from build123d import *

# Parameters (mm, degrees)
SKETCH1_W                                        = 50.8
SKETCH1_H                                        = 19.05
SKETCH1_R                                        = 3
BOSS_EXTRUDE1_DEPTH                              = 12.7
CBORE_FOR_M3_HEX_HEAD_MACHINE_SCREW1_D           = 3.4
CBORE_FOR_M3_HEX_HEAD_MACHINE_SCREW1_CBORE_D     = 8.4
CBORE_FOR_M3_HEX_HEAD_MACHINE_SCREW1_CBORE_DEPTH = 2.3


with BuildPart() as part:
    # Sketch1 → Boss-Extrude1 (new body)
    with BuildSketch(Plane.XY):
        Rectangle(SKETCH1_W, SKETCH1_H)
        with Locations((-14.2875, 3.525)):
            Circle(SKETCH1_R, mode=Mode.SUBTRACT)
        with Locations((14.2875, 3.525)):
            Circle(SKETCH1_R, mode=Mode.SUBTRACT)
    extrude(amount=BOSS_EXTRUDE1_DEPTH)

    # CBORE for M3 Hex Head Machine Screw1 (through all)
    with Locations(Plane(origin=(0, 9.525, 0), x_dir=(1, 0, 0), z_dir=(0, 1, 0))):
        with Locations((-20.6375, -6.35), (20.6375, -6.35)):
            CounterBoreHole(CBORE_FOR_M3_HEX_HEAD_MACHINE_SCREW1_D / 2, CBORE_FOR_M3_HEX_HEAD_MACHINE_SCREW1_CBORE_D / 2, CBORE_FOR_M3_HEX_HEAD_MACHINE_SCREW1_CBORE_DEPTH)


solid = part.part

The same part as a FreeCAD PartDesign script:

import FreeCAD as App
import Part
import Sketcher

V = App.Vector
Q = App.Units.Quantity


def add_polygon(sketch, points):
    """Adds a closed chain of lines whose ends are joined by coincident constraints."""
    first, n = sketch.GeometryCount, len(points)
    for a, b in zip(points, points[1:] + points[:1]):
        sketch.addGeometry(Part.LineSegment(App.Vector(*a, 0), App.Vector(*b, 0)), False)
    for i in range(n):
        sketch.addConstraint(Sketcher.Constraint("Coincident", first + i, 2, first + (i + 1) % n, 1))

doc = App.newDocument("Part")
body = doc.addObject("PartDesign::Body", "Body")

# Sketch on XY plane
sketch1 = body.newObject("Sketcher::SketchObject", "Sketch")
sketch1.AttachmentSupport = (doc.getObject("XY_Plane"), [""])
sketch1.MapMode = "FlatFace"
add_polygon(sketch1, [(-25.4, 9.525), (-25.4, -9.525), (25.4, -9.525), (25.4, 9.525)])  # lines 0-3
sketch1.addGeometry(Part.Circle(V(-14.2875, 3.525, 0), V(0, 0, 1), 3), False)  # 4
sketch1.addGeometry(Part.Circle(V(14.2875, 3.525, 0), V(0, 0, 1), 3), False)  # 5
sketch1.addConstraint([
    Sketcher.Constraint("Vertical", 0),
    Sketcher.Constraint("Horizontal", 1),
    Sketcher.Constraint("Vertical", 2),
    Sketcher.Constraint("Horizontal", 3),
    Sketcher.Constraint("Equal", 4, 5),
    Sketcher.Constraint("Symmetric", 0, 2, 2, 2, -1, 1),
    Sketcher.Constraint("Symmetric", 4, 3, 5, 3, -2),
    Sketcher.Constraint("DistanceX", 1, 1, 1, 2, Q("2 in")),
    Sketcher.Constraint("DistanceY", 0, 2, 0, 1, Q("0.75 in")),
    Sketcher.Constraint("Diameter", 4, 6.0),
    Sketcher.Constraint("DistanceX", 4, 3, -1, 1, Q("0.5625 in")),
    Sketcher.Constraint("DistanceY", -1, 1, 4, 3, 3.525),
])
pad1 = body.newObject("PartDesign::Pad", "Pad")
pad1.Profile = sketch1
pad1.Length = Q("0.5 in")

# Sketch on XZ plane
sketch2 = body.newObject("Sketcher::SketchObject", "Sketch001")
sketch2.AttachmentSupport = (doc.getObject("XZ_Plane"), [""])
sketch2.MapMode = "FlatFace"
sketch2.AttachmentOffset = App.Placement(V(0, 0, -0.375 * 25.4), App.Rotation())
sketch2.addGeometry([
    Part.Circle(V(-20.6375, 6.35, 0), V(0, 0, 1), 1.7),
    Part.Circle(V(20.6375, 6.35, 0), V(0, 0, 1), 1.7),
], False)
sketch2.addConstraint([
    Sketcher.Constraint("Equal", 0, 1),
    Sketcher.Constraint("Symmetric", 0, 3, 1, 3, -2),
    Sketcher.Constraint("Diameter", 0, 3.4),
    Sketcher.Constraint("DistanceY", -1, 1, 0, 3, Q("0.25 in")),
    Sketcher.Constraint("DistanceX", 0, 3, -1, 1, Q("0.8125 in")),
])
doc.recompute()
hole = body.newObject("PartDesign::Hole", "Hole")
hole.Profile = sketch2
hole.ThreadType = "None"
hole.Diameter = 3.4
hole.DepthType = "ThroughAll"
hole.HoleCutType = "Counterbore"
hole.HoleCutDiameter = 8.4
hole.HoleCutDepth = 2.3
hole.Reversed = True

doc.recompute()
